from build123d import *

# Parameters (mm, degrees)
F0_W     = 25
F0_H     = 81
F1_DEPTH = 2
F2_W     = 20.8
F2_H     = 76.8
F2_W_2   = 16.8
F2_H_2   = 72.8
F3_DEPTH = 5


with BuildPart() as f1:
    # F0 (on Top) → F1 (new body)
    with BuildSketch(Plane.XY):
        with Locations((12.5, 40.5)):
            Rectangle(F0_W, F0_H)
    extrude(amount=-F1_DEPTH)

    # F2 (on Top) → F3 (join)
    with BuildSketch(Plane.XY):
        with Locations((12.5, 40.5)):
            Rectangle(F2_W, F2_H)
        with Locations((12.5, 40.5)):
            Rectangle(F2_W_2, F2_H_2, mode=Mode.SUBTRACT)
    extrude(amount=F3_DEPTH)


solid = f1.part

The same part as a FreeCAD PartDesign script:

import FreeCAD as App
import Part
import Sketcher
from FreeCAD import Vector


def add_polygon(sketch, points):
    """Adds a closed chain of lines whose ends are joined by coincident constraints."""
    first, n = sketch.GeometryCount, len(points)
    for a, b in zip(points, points[1:] + points[:1]):
        sketch.addGeometry(Part.LineSegment(App.Vector(*a, 0), App.Vector(*b, 0)), False)
    for i in range(n):
        sketch.addConstraint(Sketcher.Constraint("Coincident", first + i, 2, first + (i + 1) % n, 1))

doc = App.newDocument("Part")
body = doc.addObject("PartDesign::Body", "Body")

# Sketch on XY plane
sketch1 = doc.addObject("Sketcher::SketchObject", "Sketch")
body.addObject(sketch1)
sketch1.AttachmentSupport = (doc.XY_Plane, [""])
sketch1.MapMode = "FlatFace"
add_polygon(sketch1, [(0, 81), (0, 0), (25, 0), (25, 81)])  # lines 0-3
sketch1.addConstraint(Sketcher.Constraint("Vertical", 0))
sketch1.addConstraint(Sketcher.Constraint("Horizontal", 1))
sketch1.addConstraint(Sketcher.Constraint("Vertical", 2))
sketch1.addConstraint(Sketcher.Constraint("Horizontal", 3))
sketch1.addConstraint(Sketcher.Constraint("Coincident", 0, 2, -1, 1))
sketch1.addConstraint(Sketcher.Constraint("DistanceX", 1, 1, 1, 2, 25.0))
sketch1.addConstraint(Sketcher.Constraint("DistanceY", 0, 2, 0, 1, 81.0))
pad1 = doc.addObject("PartDesign::Pad", "Pad")
body.addObject(pad1)
pad1.Profile = sketch1
pad1.Length = 2
pad1.Reversed = True

# Sketch on XY plane
sketch2 = doc.addObject("Sketcher::SketchObject", "Sketch001")
body.addObject(sketch2)
sketch2.AttachmentSupport = (doc.XY_Plane, [""])
sketch2.MapMode = "FlatFace"
add_polygon(sketch2, [(2, 79), (2, 2), (23, 2), (23, 79)])  # lines 0-3
add_polygon(sketch2, [(21, 4), (4, 4), (4, 77), (21, 77)])  # lines 4-7
sketch2.addConstraint(Sketcher.Constraint("Vertical", 0))
sketch2.addConstraint(Sketcher.Constraint("Horizontal", 1))
sketch2.addConstraint(Sketcher.Constraint("Vertical", 2))
sketch2.addConstraint(Sketcher.Constraint("Horizontal", 3))
sketch2.addConstraint(Sketcher.Constraint("Horizontal", 4))
sketch2.addConstraint(Sketcher.Constraint("Vertical", 5))
sketch2.addConstraint(Sketcher.Constraint("Horizontal", 6))
sketch2.addConstraint(Sketcher.Constraint("Vertical", 7))
sketch2.addConstraint(Sketcher.Constraint("DistanceX", 1, 1, 1, 2, 20.8))
sketch2.addConstraint(Sketcher.Constraint("DistanceX", 4, 2, 4, 1, 16.8))
sketch2.addConstraint(Sketcher.Constraint("DistanceY", 0, 2, 0, 1, 76.8))
sketch2.addConstraint(Sketcher.Constraint("DistanceY", 5, 1, 5, 2, 72.8))
sketch2.addConstraint(Sketcher.Constraint("DistanceX", 0, 2, 4, 2, 2.0))
sketch2.addConstraint(Sketcher.Constraint("DistanceY", 0, 2, 4, 2, 2.0))
sketch2.addConstraint(Sketcher.Constraint("DistanceX", -1, 1, 0, 2, 2.1))
sketch2.addConstraint(Sketcher.Constraint("DistanceY", -1, 1, 0, 2, 2.1))
pad2 = doc.addObject("PartDesign::Pad", "Pad001")
body.addObject(pad2)
pad2.Profile = sketch2
pad2.Length = 5

doc.recompute()
